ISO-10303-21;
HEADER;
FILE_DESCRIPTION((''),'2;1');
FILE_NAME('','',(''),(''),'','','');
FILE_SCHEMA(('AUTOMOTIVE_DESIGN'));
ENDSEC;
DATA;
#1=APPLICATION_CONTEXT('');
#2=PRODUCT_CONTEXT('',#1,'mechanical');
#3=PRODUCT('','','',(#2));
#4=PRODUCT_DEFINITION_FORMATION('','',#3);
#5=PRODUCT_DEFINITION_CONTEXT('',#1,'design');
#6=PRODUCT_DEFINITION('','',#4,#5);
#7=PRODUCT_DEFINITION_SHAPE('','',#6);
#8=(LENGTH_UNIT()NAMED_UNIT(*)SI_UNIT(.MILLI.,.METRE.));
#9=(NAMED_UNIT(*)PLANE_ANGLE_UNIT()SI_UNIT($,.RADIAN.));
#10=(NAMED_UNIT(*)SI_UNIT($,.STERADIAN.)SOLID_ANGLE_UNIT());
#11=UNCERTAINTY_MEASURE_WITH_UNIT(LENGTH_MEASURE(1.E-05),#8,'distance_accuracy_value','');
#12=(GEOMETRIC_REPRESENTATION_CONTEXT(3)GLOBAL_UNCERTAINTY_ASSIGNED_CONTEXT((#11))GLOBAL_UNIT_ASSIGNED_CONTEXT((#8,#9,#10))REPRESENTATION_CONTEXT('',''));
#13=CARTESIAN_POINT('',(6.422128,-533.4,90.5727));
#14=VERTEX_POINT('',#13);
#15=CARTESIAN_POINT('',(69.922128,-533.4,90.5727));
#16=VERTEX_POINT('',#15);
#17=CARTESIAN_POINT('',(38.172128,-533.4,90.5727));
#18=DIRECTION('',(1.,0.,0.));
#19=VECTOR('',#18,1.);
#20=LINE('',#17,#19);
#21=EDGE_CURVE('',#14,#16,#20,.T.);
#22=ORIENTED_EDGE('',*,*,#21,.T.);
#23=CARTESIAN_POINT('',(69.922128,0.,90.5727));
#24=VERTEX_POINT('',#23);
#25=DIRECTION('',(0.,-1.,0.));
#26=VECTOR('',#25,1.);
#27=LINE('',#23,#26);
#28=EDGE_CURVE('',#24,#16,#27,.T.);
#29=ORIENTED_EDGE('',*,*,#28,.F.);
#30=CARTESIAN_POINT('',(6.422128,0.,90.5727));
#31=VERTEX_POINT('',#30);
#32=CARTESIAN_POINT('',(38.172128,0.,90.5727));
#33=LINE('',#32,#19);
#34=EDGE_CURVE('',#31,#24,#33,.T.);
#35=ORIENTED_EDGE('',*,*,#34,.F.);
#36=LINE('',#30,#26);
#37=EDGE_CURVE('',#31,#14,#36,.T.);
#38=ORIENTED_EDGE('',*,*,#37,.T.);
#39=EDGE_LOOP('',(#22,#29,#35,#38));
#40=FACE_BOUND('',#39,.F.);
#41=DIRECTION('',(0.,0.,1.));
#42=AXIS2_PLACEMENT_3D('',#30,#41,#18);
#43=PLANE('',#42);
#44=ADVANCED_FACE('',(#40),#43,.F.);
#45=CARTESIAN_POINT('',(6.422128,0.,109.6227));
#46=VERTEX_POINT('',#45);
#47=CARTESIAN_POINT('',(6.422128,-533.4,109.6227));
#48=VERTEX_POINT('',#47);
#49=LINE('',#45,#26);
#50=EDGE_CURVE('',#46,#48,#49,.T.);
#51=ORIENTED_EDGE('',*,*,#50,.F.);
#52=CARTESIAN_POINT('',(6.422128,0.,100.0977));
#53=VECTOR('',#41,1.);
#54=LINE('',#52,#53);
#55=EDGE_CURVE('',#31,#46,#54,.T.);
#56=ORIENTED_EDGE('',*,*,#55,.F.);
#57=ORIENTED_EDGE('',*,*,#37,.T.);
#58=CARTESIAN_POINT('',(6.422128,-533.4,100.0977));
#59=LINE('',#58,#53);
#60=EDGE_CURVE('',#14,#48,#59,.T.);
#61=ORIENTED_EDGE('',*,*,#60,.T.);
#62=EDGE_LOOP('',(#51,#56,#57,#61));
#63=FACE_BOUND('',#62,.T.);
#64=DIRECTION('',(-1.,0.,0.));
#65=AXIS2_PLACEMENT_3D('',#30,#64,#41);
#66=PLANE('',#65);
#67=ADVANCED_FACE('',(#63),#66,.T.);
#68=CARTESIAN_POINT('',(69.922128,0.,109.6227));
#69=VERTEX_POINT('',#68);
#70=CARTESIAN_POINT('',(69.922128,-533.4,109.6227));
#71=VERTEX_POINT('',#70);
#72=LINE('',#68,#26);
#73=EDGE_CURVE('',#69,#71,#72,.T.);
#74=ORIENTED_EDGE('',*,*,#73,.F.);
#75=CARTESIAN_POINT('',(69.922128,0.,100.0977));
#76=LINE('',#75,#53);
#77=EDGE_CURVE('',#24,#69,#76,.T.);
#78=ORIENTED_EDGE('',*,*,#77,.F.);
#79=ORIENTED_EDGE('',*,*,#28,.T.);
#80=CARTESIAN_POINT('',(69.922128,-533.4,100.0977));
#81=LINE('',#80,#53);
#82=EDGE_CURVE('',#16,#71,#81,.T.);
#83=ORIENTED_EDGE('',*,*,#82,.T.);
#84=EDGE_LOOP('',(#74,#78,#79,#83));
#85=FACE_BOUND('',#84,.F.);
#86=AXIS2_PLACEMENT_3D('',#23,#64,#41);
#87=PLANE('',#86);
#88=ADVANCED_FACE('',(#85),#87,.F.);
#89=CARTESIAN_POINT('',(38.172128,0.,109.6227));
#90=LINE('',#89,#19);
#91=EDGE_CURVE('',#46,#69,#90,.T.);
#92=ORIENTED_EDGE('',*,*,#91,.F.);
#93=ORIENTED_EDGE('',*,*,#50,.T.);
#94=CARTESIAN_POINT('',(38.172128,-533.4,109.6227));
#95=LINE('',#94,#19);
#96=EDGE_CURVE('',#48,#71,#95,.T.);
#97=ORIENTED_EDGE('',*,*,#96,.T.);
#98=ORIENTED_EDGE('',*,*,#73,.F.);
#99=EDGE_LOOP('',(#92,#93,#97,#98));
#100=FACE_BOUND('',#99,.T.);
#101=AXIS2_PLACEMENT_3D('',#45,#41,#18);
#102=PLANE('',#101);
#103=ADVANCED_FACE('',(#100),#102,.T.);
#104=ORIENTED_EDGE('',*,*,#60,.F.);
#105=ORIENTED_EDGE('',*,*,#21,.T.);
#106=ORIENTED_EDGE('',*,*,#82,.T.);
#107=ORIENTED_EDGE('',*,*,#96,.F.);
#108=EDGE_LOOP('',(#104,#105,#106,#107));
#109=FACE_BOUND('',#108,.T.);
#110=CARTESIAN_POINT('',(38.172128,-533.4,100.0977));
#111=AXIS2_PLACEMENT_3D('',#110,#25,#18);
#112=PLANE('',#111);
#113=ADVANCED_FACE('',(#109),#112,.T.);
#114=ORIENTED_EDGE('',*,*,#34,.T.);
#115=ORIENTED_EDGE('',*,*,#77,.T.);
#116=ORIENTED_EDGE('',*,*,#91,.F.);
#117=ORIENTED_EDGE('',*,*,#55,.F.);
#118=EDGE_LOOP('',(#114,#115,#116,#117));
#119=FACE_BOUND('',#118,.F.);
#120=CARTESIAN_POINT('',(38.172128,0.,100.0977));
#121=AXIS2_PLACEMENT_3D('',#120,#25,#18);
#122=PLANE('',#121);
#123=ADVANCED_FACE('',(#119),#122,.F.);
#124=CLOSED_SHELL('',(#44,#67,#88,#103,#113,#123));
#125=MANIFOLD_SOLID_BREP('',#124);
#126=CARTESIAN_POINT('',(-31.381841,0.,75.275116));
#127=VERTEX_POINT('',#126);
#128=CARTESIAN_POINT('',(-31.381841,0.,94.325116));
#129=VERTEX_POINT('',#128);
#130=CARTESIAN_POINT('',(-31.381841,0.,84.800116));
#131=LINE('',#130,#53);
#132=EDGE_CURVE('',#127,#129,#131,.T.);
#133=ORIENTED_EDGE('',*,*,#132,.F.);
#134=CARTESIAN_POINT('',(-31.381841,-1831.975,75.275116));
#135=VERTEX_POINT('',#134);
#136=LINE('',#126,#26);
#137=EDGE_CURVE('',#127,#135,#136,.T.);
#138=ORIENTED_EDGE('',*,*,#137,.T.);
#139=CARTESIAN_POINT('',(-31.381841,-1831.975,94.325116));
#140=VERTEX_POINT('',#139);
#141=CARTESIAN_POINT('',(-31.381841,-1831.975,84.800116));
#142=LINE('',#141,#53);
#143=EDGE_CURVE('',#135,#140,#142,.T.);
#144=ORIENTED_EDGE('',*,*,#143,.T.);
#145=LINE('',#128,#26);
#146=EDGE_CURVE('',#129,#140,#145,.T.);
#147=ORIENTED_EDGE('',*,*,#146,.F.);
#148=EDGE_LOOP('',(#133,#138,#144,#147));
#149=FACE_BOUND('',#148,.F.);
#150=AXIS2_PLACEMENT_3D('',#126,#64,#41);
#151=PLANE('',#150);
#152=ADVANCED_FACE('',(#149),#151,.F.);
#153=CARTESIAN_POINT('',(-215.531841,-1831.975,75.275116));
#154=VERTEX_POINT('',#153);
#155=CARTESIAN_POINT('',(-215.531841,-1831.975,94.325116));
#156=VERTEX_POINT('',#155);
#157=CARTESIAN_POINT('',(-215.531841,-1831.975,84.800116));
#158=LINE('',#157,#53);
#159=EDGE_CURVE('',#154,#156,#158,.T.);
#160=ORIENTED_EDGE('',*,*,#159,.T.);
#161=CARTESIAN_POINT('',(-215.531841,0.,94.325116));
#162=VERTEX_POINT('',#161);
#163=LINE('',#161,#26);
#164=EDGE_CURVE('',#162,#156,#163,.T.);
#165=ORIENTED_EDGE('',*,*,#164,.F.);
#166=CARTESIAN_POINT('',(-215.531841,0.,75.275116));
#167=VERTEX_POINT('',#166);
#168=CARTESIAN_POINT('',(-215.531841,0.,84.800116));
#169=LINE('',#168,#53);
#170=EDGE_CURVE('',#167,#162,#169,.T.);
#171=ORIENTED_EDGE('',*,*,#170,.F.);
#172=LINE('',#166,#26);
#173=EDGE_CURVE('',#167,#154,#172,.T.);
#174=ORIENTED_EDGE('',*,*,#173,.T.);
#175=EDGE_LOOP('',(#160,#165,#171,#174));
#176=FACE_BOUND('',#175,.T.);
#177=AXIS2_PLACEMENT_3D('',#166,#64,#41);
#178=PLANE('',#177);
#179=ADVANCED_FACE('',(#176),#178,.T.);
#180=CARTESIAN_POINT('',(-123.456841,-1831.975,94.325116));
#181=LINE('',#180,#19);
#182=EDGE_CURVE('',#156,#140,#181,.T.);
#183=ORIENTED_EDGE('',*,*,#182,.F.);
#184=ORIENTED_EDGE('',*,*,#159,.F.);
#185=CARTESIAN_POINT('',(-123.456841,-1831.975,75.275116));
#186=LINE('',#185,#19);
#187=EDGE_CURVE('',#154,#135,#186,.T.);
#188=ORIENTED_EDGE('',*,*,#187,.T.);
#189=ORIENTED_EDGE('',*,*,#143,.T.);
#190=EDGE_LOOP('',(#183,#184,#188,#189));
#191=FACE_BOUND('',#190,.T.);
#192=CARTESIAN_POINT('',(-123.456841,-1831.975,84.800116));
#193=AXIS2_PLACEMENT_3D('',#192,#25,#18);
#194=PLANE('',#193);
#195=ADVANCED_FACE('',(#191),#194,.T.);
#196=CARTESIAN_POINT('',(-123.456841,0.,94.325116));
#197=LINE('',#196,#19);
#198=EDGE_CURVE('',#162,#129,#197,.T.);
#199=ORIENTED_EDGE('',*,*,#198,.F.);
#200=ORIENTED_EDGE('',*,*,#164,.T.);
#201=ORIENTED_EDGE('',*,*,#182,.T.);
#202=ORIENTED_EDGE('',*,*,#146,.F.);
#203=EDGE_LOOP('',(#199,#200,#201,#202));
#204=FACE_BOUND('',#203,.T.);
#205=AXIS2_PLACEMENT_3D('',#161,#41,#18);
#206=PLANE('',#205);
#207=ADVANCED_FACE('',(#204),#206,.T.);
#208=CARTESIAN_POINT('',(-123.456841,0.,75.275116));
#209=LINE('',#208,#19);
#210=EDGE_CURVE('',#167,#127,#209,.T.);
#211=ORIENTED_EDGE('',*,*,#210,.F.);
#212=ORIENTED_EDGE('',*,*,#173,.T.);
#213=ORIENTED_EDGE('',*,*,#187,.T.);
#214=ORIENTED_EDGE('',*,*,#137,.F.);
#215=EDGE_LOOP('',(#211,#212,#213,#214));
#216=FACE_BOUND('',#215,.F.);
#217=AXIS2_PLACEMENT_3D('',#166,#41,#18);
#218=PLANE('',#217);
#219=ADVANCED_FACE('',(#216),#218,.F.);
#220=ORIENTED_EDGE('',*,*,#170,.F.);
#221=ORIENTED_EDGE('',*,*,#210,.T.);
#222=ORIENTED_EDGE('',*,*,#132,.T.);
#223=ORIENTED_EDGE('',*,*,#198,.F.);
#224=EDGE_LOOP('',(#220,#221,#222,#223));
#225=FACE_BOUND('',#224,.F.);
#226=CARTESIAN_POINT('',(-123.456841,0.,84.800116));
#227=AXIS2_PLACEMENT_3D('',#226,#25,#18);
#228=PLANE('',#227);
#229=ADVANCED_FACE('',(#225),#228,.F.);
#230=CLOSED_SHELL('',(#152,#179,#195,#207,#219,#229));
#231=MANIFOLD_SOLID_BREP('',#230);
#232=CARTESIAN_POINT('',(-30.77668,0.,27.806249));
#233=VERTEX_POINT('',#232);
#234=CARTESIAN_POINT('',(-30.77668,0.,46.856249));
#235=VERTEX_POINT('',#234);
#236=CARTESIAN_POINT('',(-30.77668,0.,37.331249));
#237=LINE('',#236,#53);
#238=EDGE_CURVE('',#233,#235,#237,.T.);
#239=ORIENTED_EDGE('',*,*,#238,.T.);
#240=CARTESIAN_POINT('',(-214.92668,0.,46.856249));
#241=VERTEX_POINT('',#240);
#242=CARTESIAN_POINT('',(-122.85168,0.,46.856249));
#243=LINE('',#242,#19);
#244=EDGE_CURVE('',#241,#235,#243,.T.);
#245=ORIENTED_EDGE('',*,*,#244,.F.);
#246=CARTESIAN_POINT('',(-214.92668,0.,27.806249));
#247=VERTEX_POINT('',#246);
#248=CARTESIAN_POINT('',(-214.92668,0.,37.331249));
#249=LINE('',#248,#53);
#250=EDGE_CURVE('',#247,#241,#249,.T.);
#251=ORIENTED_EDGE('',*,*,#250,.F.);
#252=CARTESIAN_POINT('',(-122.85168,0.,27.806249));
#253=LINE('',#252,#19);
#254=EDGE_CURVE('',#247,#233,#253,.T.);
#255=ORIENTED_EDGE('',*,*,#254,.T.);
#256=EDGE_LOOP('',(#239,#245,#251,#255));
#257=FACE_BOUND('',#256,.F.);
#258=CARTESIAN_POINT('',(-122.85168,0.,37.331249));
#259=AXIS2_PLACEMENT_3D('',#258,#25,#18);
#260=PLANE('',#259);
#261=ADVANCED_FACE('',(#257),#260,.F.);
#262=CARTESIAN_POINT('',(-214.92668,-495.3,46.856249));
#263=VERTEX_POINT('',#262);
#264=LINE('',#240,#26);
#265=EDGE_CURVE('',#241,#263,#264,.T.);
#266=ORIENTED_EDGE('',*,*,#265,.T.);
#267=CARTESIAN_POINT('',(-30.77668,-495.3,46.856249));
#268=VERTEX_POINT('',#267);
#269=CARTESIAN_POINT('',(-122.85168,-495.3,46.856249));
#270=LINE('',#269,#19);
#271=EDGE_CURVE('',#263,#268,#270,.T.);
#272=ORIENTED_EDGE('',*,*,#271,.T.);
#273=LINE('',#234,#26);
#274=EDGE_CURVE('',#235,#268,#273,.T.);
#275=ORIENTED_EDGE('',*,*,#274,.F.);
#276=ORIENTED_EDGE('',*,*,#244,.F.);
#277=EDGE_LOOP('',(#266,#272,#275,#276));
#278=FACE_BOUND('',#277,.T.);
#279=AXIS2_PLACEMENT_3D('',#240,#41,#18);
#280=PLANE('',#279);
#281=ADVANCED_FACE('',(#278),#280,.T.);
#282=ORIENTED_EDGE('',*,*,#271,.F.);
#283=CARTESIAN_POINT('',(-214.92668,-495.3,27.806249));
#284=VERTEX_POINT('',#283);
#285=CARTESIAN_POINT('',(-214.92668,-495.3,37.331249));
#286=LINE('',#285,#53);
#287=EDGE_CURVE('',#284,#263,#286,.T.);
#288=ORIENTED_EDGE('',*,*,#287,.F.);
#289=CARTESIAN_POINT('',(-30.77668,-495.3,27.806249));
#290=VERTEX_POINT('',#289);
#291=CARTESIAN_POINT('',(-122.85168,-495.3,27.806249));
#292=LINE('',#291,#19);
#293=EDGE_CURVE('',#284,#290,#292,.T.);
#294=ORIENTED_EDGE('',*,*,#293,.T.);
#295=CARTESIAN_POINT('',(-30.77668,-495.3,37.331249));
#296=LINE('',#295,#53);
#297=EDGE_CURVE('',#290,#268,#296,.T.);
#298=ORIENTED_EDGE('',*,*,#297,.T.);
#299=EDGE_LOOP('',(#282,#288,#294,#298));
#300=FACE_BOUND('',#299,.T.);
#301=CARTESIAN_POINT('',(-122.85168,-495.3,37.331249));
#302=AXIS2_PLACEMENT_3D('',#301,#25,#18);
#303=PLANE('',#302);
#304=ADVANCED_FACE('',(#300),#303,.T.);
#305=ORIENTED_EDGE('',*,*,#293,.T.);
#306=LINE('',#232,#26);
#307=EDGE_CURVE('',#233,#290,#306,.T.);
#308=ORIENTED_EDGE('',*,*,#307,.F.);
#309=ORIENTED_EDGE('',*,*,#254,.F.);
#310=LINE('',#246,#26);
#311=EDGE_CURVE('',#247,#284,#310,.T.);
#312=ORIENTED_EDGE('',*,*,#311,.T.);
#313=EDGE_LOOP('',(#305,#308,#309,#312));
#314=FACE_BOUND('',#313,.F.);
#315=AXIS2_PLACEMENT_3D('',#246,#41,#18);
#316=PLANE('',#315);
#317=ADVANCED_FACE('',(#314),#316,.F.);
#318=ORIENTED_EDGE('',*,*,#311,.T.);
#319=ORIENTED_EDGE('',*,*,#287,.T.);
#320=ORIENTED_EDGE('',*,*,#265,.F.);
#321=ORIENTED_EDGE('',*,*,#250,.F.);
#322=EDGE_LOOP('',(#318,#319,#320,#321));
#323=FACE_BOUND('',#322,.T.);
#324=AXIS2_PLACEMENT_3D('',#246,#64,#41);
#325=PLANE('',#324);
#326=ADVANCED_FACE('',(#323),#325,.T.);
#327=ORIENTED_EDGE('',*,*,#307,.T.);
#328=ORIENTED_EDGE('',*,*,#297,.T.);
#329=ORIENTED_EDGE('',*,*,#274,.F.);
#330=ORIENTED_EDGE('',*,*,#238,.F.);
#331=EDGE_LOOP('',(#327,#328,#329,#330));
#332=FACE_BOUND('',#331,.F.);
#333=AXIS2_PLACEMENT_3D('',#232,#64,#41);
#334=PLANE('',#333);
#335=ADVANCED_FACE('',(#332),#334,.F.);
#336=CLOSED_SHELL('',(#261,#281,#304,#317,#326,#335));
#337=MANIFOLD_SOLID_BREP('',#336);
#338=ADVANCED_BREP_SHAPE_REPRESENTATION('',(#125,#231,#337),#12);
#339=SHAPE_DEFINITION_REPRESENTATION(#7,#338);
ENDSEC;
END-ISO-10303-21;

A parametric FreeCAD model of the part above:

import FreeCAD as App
import Part
import Sketcher
Q = App.Units.Quantity

doc = App.newDocument("Part")
body = doc.addObject("PartDesign::Body", "Body")

sketch1 = doc.addObject("Sketcher::SketchObject", "Sketch")
body.addObject(sketch1)
sketch1.AttachmentSupport = (doc.XZ_Plane, [""])
sketch1.MapMode = "FlatFace"
sketch1.addGeometry([
    Part.LineSegment(App.Vector(-216, 94, 0), App.Vector(-216, 75, 0)),
    Part.LineSegment(App.Vector(-216, 75, 0), App.Vector(-31, 75, 0)),
    Part.LineSegment(App.Vector(-31, 75, 0), App.Vector(-31, 94, 0)),
    Part.LineSegment(App.Vector(-31, 94, 0), App.Vector(-216, 94, 0)),
], False)
sketch1.addConstraint([
    Sketcher.Constraint("Coincident", 0, 2, 1, 1),
    Sketcher.Constraint("Coincident", 1, 2, 2, 1),
    Sketcher.Constraint("Coincident", 2, 2, 3, 1),
    Sketcher.Constraint("Coincident", 3, 2, 0, 1),
    Sketcher.Constraint("Vertical", 0),
    Sketcher.Constraint("Horizontal", 1),
    Sketcher.Constraint("Vertical", 2),
    Sketcher.Constraint("Horizontal", 3),
    Sketcher.Constraint("DistanceX", 1, 1, 1, 2, Q("7.25 in")),
    Sketcher.Constraint("DistanceY", 0, 2, 0, 1, Q("0.75 in")),
    Sketcher.Constraint("DistanceX", 0, 2, -1, 1, 215.531841),
    Sketcher.Constraint("DistanceY", -1, 1, 0, 2, 75.275116),
])
pad1 = doc.addObject("PartDesign::Pad", "Pad")
body.addObject(pad1)
pad1.Profile = sketch1
pad1.Length = Q("72.125 in")
body2 = doc.addObject("PartDesign::Body", "Body001")

sketch2 = doc.addObject("Sketcher::SketchObject", "Sketch001")
body2.addObject(sketch2)
sketch2.AttachmentSupport = (doc.getObject("XZ_Plane001"), [""])
sketch2.MapMode = "FlatFace"
sketch2.addGeometry([
    Part.LineSegment(App.Vector(6, 110, 0), App.Vector(6, 91, 0)),
    Part.LineSegment(App.Vector(6, 91, 0), App.Vector(70, 91, 0)),
    Part.LineSegment(App.Vector(70, 91, 0), App.Vector(70, 110, 0)),
    Part.LineSegment(App.Vector(70, 110, 0), App.Vector(6, 110, 0)),
], False)
sketch2.addConstraint([
    Sketcher.Constraint("Coincident", 0, 2, 1, 1),
    Sketcher.Constraint("Coincident", 1, 2, 2, 1),
    Sketcher.Constraint("Coincident", 2, 2, 3, 1),
    Sketcher.Constraint("Coincident", 3, 2, 0, 1),
    Sketcher.Constraint("Vertical", 0),
    Sketcher.Constraint("Horizontal", 1),
    Sketcher.Constraint("Vertical", 2),
    Sketcher.Constraint("Horizontal", 3),
    Sketcher.Constraint("DistanceX", 1, 1, 1, 2, Q("2.5 in")),
    Sketcher.Constraint("DistanceY", 0, 2, 0, 1, Q("0.75 in")),
    Sketcher.Constraint("DistanceY", -1, 1, 0, 2, 90.5727),
    Sketcher.Constraint("DistanceX", -1, 1, 1, 2, 69.922128),
])
pad2 = doc.addObject("PartDesign::Pad", "Pad001")
body2.addObject(pad2)
pad2.Profile = sketch2
pad2.Length = Q("21 in")
body3 = doc.addObject("PartDesign::Body", "Body002")

sketch3 = doc.addObject("Sketcher::SketchObject", "Sketch002")
body3.addObject(sketch3)
sketch3.AttachmentSupport = (doc.getObject("XZ_Plane002"), [""])
sketch3.MapMode = "FlatFace"
sketch3.addGeometry([
    Part.LineSegment(App.Vector(-215, 47, 0), App.Vector(-215, 28, 0)),
    Part.LineSegment(App.Vector(-215, 28, 0), App.Vector(-31, 28, 0)),
    Part.LineSegment(App.Vector(-31, 28, 0), App.Vector(-31, 47, 0)),
    Part.LineSegment(App.Vector(-31, 47, 0), App.Vector(-215, 47, 0)),
], False)
sketch3.addConstraint([
    Sketcher.Constraint("Coincident", 0, 2, 1, 1),
    Sketcher.Constraint("Coincident", 1, 2, 2, 1),
    Sketcher.Constraint("Coincident", 2, 2, 3, 1),
    Sketcher.Constraint("Coincident", 3, 2, 0, 1),
    Sketcher.Constraint("Vertical", 0),
    Sketcher.Constraint("Horizontal", 1),
    Sketcher.Constraint("Vertical", 2),
    Sketcher.Constraint("Horizontal", 3),
    Sketcher.Constraint("DistanceX", 1, 1, 1, 2, Q("7.25 in")),
    Sketcher.Constraint("DistanceY", 0, 2, 0, 1, Q("0.75 in")),
    Sketcher.Constraint("DistanceX", 0, 2, -1, 1, 214.92668),
    Sketcher.Constraint("DistanceY", -1, 1, 0, 2, 27.806249),
])
pad3 = doc.addObject("PartDesign::Pad", "Pad002")
body3.addObject(pad3)
pad3.Profile = sketch3
pad3.Length = Q("19.5 in")

doc.recompute()
